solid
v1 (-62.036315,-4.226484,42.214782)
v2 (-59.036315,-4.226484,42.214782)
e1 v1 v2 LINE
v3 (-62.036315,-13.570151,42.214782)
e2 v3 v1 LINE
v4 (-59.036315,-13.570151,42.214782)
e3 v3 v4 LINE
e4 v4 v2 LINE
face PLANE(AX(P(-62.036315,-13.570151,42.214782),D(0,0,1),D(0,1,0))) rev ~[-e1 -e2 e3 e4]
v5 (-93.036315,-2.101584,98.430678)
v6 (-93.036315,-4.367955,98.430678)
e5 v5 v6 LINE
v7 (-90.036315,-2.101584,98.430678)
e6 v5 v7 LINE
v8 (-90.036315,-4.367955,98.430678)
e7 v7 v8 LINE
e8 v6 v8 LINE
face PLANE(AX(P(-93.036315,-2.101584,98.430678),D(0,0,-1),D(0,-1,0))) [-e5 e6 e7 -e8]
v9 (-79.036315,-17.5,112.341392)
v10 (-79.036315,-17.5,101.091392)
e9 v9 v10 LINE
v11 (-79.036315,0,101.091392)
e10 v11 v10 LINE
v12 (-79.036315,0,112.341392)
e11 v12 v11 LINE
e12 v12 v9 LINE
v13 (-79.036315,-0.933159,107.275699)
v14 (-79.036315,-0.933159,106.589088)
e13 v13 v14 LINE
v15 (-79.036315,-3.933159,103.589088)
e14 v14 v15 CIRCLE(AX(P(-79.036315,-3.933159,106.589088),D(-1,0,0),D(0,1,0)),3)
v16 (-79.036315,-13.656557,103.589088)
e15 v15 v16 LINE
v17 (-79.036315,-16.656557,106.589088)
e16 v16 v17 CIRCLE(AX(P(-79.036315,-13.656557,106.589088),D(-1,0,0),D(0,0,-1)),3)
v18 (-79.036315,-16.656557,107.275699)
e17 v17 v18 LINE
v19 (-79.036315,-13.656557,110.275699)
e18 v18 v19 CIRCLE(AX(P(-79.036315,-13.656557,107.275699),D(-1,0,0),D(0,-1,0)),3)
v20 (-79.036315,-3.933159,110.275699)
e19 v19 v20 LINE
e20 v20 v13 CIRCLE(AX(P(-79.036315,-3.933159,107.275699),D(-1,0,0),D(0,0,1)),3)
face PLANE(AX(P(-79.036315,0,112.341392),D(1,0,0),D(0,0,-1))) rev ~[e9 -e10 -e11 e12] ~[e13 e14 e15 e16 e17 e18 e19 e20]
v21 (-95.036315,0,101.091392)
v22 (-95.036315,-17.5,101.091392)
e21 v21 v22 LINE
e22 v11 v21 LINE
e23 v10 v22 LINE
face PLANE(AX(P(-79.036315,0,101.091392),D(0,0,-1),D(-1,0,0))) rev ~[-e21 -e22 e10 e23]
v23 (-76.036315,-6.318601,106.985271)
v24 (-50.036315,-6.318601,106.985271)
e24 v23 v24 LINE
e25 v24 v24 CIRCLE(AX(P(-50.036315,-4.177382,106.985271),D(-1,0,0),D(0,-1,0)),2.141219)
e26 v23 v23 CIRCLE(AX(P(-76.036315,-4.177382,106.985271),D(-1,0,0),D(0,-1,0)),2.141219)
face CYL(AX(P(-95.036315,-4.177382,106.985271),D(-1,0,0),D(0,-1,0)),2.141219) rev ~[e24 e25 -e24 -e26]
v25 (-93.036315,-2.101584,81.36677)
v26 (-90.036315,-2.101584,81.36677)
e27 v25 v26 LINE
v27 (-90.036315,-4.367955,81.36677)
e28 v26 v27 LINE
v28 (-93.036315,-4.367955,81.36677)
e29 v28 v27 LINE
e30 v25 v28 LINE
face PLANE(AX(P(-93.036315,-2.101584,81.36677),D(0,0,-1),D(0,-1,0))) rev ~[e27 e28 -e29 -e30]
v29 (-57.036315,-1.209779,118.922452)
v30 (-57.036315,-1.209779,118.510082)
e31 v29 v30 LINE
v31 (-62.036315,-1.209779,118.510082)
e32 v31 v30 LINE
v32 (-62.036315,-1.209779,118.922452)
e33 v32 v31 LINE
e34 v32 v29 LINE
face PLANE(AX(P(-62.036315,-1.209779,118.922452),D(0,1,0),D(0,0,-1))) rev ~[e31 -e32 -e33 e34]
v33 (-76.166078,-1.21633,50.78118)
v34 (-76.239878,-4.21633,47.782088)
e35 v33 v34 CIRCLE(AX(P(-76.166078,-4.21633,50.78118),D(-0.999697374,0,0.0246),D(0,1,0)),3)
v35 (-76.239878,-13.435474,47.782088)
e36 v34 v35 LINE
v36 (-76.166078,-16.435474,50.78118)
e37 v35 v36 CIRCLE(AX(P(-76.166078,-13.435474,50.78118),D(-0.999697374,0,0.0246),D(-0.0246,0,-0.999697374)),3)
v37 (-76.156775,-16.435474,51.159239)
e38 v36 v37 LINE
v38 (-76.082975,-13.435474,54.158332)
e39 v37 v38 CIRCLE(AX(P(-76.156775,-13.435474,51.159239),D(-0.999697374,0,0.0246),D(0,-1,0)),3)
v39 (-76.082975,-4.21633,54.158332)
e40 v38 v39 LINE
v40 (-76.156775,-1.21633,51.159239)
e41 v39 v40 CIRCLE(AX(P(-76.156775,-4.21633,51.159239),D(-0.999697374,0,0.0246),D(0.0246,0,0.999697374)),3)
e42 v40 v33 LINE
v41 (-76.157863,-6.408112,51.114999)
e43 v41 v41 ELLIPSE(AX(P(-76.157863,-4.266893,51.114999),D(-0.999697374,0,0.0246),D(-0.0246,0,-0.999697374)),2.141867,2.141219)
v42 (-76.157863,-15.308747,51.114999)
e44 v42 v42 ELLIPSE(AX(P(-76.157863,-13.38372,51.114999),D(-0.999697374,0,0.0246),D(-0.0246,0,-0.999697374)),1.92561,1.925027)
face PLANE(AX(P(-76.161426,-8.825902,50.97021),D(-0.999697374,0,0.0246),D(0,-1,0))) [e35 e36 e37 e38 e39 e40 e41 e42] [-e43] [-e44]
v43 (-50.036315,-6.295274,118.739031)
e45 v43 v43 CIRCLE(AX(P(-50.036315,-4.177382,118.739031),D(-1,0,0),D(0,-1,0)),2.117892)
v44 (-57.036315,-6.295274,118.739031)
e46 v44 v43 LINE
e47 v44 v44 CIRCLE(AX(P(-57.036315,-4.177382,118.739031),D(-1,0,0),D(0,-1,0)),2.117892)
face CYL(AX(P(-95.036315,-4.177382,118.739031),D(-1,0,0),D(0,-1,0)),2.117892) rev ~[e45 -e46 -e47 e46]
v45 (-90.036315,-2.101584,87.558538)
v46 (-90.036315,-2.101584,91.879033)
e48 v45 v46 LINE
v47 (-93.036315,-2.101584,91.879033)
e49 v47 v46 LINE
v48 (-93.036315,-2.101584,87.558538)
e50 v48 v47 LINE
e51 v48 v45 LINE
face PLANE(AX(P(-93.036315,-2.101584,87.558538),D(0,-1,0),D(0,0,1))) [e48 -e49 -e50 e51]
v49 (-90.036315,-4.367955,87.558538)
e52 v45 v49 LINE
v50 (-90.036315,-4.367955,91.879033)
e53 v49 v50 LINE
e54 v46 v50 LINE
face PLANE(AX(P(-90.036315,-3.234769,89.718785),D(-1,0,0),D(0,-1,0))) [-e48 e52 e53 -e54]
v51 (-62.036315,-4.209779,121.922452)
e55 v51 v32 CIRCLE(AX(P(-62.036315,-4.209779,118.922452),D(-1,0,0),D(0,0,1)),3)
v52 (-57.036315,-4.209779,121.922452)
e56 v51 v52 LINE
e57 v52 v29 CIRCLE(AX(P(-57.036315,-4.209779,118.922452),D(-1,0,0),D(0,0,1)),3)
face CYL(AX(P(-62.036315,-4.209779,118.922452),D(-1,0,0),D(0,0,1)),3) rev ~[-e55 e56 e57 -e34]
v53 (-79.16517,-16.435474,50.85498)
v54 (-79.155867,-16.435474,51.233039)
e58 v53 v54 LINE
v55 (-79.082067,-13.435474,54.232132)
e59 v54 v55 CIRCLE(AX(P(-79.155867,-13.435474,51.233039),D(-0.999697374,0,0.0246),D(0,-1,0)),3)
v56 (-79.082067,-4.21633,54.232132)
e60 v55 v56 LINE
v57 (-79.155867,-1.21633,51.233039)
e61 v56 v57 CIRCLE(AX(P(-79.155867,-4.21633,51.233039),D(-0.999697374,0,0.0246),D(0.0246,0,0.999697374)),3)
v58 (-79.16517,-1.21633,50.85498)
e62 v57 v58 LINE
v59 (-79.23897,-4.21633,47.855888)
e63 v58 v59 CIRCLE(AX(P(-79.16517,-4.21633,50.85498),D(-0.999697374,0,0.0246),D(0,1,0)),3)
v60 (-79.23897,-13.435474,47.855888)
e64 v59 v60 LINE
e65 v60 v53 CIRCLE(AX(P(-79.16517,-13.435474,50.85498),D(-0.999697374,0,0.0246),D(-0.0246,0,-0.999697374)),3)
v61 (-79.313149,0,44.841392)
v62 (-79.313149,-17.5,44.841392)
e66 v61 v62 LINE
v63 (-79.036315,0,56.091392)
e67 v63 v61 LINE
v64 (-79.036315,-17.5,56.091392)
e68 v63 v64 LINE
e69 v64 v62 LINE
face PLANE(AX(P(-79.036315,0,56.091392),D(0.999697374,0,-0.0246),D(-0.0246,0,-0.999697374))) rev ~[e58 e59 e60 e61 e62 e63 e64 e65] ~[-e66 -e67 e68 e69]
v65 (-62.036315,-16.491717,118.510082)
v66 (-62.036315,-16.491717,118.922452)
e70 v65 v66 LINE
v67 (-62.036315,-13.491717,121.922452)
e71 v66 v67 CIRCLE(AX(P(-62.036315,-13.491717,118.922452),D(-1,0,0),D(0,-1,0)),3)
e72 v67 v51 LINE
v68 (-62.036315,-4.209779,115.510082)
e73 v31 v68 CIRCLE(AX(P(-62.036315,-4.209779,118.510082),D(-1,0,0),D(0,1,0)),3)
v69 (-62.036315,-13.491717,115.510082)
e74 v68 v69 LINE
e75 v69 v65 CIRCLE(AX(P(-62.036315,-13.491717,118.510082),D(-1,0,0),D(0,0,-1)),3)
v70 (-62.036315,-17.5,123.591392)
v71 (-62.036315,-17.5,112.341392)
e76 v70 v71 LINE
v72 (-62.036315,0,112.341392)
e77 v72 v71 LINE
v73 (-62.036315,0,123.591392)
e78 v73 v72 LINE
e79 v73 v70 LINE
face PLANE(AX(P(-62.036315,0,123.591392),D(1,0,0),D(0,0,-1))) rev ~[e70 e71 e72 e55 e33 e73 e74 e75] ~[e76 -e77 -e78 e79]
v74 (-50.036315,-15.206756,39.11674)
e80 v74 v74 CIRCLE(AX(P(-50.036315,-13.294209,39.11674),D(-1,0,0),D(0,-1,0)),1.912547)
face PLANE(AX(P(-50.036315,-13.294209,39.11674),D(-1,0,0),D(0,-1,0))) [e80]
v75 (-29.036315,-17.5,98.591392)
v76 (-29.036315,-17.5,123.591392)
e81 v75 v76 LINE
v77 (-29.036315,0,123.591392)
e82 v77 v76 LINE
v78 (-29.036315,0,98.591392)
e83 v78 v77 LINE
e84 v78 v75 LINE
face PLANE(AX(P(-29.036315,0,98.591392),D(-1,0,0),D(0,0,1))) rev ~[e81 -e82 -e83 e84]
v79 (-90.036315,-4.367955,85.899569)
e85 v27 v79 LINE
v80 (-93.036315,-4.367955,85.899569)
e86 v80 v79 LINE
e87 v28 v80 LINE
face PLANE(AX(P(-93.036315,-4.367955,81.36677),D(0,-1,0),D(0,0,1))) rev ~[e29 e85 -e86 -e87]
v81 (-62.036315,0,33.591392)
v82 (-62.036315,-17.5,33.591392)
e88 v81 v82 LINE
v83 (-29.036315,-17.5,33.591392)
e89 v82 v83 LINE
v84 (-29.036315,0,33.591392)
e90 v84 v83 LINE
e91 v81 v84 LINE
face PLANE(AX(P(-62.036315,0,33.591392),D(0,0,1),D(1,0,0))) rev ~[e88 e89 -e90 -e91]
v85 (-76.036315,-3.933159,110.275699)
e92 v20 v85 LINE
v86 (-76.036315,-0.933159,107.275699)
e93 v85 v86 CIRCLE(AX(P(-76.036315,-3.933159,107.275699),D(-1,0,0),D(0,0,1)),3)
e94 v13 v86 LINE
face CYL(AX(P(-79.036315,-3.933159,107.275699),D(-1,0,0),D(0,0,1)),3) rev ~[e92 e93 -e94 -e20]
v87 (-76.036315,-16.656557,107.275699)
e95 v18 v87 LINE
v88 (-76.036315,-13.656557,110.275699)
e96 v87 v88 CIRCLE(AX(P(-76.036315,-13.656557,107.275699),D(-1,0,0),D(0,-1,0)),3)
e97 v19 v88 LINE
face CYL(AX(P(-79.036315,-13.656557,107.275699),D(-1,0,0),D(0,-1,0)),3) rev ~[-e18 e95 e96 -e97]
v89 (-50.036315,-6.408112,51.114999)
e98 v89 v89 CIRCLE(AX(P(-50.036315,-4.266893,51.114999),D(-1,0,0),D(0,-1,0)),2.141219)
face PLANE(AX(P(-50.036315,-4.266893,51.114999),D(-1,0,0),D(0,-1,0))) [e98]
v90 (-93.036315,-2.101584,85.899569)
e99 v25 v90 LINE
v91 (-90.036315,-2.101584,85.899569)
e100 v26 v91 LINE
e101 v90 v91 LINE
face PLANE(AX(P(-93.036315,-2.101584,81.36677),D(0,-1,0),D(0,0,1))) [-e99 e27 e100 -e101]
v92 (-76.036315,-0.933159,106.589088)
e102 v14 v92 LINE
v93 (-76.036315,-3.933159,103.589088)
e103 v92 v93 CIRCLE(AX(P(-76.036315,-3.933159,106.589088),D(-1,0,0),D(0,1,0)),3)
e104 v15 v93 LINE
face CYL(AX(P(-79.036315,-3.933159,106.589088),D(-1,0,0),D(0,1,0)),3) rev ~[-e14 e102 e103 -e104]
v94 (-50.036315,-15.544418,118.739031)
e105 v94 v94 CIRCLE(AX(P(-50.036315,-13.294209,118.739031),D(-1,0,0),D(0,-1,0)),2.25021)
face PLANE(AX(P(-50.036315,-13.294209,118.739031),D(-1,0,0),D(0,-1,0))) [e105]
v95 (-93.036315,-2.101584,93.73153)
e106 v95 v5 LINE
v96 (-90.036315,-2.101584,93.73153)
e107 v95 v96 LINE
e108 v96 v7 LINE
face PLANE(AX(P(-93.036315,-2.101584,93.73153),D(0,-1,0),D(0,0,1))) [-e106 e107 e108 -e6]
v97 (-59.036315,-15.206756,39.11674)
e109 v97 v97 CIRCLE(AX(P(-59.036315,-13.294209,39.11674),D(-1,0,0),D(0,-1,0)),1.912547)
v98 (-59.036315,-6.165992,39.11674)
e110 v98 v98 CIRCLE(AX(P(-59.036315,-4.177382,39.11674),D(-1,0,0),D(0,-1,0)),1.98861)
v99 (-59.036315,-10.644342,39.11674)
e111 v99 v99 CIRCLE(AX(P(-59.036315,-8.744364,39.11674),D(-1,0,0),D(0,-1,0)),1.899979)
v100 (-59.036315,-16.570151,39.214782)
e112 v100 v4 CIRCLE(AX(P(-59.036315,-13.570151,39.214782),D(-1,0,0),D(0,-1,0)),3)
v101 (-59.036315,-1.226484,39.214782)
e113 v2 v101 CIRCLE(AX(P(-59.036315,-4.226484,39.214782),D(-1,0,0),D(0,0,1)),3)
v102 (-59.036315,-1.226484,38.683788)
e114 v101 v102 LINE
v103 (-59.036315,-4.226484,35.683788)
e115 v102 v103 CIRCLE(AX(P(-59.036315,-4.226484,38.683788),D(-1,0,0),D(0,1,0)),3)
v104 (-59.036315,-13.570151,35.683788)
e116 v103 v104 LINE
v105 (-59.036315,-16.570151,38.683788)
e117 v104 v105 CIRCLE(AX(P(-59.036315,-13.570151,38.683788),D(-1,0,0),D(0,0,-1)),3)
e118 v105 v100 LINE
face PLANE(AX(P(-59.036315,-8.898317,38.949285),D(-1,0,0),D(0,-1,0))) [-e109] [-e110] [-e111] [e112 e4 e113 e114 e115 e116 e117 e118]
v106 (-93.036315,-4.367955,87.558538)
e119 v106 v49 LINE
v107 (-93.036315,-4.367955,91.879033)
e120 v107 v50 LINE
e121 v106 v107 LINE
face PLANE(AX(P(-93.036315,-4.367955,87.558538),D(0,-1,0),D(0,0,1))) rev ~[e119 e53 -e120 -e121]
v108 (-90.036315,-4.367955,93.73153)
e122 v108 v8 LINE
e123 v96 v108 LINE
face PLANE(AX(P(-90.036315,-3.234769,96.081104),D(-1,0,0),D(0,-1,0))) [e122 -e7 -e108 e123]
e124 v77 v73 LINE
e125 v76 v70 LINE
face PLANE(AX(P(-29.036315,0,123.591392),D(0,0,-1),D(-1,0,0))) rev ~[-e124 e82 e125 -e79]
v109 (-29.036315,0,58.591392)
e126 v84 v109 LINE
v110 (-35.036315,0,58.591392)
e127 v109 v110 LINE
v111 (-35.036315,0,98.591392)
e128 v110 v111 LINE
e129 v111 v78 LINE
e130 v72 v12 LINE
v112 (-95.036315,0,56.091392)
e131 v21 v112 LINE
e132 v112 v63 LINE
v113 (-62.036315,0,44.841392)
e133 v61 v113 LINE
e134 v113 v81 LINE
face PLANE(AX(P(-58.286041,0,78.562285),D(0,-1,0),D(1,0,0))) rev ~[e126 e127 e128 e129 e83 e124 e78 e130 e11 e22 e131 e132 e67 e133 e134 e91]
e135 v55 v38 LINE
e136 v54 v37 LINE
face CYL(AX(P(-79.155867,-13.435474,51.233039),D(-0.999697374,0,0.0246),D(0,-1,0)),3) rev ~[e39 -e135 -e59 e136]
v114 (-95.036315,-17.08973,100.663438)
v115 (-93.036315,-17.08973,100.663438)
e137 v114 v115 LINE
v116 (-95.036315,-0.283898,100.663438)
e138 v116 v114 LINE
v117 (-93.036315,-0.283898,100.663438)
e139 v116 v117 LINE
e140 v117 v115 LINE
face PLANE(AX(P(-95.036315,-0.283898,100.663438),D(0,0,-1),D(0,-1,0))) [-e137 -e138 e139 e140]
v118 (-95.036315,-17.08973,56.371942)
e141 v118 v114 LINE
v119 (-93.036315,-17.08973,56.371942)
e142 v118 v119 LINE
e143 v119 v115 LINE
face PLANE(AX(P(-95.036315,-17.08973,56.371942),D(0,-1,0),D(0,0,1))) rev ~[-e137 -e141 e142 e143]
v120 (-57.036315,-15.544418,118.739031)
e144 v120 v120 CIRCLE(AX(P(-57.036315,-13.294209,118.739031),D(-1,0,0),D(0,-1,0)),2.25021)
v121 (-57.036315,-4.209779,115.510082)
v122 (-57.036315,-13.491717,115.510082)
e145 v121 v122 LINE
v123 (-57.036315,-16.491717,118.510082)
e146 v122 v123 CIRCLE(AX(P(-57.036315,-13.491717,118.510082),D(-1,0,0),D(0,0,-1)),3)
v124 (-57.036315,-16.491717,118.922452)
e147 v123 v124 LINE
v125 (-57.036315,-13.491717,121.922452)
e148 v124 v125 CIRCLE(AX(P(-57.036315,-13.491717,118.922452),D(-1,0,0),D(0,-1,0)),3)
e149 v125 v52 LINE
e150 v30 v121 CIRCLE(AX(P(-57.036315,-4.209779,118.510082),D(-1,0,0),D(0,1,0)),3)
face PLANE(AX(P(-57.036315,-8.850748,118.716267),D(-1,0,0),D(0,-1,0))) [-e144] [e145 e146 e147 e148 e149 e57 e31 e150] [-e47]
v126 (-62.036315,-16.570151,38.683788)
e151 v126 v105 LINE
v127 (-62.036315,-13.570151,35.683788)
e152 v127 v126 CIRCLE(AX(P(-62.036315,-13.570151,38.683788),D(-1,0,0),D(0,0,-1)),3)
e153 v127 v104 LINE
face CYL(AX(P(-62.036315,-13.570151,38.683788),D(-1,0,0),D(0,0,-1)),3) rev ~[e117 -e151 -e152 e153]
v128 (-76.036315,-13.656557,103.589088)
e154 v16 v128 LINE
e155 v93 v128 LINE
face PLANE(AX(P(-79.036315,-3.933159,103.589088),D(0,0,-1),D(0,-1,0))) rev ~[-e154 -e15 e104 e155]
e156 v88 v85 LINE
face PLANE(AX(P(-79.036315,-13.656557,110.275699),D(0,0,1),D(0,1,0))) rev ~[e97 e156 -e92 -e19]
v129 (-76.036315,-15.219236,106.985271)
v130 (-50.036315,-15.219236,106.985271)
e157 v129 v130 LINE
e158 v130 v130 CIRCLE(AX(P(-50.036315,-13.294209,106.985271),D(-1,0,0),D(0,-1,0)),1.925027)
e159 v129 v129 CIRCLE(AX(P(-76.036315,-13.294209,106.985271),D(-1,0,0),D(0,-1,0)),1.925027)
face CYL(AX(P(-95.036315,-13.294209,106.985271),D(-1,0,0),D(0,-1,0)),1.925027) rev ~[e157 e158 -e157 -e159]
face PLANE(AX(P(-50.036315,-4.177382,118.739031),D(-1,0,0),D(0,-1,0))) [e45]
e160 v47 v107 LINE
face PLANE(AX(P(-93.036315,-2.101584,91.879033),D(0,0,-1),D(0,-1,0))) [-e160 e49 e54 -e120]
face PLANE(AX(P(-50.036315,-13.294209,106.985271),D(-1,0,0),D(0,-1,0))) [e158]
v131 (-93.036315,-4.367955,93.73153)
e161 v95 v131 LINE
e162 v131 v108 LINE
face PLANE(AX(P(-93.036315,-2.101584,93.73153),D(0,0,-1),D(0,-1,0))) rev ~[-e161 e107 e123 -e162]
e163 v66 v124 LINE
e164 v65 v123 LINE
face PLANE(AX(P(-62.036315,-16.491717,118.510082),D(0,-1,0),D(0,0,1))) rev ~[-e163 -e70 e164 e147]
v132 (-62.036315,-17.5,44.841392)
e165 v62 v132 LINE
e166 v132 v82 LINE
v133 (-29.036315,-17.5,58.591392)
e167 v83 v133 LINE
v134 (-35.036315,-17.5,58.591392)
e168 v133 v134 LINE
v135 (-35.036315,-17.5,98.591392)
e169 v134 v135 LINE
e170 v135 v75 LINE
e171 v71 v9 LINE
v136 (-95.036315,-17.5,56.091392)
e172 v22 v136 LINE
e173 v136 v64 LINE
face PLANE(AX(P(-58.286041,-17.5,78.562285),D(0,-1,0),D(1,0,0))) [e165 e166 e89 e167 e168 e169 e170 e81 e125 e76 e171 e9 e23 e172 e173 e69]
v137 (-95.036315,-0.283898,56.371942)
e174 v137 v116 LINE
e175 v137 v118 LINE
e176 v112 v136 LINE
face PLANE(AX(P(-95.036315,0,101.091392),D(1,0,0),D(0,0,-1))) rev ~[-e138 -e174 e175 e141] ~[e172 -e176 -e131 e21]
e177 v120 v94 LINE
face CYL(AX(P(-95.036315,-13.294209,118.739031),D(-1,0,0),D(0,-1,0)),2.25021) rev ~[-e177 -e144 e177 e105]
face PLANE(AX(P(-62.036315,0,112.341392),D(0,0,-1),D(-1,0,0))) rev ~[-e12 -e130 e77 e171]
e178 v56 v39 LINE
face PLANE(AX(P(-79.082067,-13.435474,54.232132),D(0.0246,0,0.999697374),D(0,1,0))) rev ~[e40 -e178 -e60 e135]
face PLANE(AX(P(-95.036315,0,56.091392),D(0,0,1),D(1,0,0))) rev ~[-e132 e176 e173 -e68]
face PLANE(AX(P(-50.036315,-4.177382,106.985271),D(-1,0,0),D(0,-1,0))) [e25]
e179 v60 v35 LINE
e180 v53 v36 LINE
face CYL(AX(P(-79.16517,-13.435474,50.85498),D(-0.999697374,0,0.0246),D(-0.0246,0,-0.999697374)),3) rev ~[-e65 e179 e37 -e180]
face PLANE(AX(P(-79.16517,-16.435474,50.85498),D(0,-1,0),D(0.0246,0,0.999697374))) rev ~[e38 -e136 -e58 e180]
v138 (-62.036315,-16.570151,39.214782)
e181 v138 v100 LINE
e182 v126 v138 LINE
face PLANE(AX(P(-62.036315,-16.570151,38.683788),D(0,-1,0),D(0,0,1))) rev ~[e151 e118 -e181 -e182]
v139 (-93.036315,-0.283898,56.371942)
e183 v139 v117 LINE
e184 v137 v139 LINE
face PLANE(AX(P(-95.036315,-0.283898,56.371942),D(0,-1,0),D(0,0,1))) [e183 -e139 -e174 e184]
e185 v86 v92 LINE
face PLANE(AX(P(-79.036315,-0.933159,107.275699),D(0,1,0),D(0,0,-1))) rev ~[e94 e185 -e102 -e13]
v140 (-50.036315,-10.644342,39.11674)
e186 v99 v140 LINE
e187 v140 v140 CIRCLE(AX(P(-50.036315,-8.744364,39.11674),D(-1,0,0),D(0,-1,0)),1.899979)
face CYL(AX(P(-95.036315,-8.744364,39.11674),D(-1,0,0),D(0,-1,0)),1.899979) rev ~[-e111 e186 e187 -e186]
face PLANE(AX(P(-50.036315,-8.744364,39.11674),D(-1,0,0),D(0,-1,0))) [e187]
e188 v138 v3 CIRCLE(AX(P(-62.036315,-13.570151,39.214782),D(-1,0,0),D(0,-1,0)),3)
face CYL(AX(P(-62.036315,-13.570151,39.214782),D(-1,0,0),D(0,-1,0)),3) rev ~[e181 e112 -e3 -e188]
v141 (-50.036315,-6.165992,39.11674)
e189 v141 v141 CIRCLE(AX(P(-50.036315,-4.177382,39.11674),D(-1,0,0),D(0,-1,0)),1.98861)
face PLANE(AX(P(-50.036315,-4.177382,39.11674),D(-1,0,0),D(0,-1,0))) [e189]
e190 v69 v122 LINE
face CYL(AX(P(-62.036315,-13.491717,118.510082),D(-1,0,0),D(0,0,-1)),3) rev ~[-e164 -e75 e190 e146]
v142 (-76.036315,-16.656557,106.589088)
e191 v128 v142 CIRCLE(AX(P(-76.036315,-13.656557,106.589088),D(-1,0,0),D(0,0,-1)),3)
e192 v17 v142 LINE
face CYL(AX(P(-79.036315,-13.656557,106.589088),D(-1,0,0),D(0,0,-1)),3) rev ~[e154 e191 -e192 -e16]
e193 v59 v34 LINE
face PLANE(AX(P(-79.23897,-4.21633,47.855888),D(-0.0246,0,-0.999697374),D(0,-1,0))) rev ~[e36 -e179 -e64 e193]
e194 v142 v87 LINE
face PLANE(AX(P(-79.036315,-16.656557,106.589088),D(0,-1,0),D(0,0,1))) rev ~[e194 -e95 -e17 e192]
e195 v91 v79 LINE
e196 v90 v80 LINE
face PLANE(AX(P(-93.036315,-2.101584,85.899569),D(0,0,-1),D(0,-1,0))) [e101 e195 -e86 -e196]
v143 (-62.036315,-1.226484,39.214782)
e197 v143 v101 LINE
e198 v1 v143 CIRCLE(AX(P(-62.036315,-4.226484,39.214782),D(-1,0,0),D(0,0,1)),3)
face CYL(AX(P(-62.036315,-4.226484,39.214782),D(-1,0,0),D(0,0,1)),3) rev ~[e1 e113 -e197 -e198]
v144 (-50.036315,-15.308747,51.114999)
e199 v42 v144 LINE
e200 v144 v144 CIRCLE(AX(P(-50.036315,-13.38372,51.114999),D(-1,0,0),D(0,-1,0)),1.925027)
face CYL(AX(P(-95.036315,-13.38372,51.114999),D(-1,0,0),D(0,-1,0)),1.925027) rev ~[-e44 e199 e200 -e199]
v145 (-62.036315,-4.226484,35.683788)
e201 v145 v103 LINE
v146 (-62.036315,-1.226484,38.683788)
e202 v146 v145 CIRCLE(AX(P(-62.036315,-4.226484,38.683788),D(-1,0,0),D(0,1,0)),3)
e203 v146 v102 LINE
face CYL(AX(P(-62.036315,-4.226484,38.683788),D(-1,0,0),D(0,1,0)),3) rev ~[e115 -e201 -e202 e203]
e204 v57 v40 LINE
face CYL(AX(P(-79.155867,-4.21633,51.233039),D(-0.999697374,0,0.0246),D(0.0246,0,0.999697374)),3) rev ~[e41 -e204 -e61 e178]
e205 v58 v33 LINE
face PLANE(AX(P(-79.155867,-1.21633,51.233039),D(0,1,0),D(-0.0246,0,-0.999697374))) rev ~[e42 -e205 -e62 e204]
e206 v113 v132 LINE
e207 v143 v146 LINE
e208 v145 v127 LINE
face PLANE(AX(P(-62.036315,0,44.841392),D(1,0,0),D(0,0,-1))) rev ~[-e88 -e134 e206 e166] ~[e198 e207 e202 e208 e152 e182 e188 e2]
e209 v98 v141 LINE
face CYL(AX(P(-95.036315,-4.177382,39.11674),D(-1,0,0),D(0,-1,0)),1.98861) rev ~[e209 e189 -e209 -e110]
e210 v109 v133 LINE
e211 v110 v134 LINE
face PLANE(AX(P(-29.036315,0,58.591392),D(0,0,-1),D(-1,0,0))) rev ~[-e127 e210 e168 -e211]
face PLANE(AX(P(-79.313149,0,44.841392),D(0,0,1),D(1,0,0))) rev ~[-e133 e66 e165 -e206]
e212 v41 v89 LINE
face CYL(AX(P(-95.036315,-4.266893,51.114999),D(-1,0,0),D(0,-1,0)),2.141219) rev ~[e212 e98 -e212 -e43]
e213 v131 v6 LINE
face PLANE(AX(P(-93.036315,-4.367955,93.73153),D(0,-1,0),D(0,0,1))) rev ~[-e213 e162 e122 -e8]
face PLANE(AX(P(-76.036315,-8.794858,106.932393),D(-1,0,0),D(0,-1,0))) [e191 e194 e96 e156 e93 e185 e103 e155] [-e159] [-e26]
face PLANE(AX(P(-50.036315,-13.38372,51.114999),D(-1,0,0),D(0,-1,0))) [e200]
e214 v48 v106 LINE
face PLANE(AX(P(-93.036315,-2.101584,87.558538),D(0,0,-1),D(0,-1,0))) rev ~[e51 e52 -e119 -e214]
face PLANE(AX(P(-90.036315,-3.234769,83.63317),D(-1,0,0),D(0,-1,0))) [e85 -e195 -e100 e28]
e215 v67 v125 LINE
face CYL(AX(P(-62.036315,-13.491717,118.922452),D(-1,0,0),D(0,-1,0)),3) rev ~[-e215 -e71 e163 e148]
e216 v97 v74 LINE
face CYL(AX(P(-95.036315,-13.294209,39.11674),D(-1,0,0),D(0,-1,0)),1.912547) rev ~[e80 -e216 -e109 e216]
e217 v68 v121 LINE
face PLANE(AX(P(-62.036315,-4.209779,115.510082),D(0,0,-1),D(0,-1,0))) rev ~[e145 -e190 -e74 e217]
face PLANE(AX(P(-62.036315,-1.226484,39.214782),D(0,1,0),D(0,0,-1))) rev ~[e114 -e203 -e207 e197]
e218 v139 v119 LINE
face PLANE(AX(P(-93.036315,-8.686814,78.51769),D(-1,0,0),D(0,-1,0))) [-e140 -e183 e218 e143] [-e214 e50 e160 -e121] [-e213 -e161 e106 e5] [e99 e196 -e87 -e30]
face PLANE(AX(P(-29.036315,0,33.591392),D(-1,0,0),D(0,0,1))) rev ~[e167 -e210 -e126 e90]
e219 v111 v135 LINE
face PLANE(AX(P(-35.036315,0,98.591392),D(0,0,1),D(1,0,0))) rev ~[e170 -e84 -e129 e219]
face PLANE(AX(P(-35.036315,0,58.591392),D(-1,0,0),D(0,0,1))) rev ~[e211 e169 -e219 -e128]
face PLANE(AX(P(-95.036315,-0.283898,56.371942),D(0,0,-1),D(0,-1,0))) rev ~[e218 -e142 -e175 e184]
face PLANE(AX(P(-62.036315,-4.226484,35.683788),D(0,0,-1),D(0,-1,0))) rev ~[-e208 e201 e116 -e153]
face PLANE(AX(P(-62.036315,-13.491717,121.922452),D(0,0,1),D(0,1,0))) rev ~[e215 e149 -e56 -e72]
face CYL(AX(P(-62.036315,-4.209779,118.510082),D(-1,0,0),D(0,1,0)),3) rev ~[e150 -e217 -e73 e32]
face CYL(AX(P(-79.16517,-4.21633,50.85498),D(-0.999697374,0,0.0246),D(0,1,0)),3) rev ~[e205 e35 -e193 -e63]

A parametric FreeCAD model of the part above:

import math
import FreeCAD as App
import Part
import Sketcher

V = App.Vector
Q = App.Units.Quantity


def add_polygon(sketch, points):
    """Adds a closed chain of lines whose ends are joined by coincident constraints."""
    first, n = sketch.GeometryCount, len(points)
    for a, b in zip(points, points[1:] + points[:1]):
        sketch.addGeometry(Part.LineSegment(App.Vector(*a, 0), App.Vector(*b, 0)), False)
    for i in range(n):
        sketch.addConstraint(Sketcher.Constraint("Coincident", first + i, 2, first + (i + 1) % n, 1))

doc = App.newDocument("Part")
body = doc.addObject("PartDesign::Body", "Body")

# Sketch on XZ plane
sketch1 = body.newObject("Sketcher::SketchObject", "Sketch")
sketch1.AttachmentSupport = (doc.getObject("XZ_Plane"), [""])
sketch1.MapMode = "FlatFace"
add_polygon(sketch1, [(-29, 124), (-62, 124), (-62, 112), (-79, 112), (-79, 101), (-95, 101), (-95, 56), (-79, 56), (-79, 45), (-62, 45), (-62, 34), (-29, 34), (-29, 59), (-35, 59), (-35, 99), (-29, 99)])  # lines 0-15
sketch1.addConstraint(Sketcher.Constraint("Horizontal", 0))
sketch1.addConstraint(Sketcher.Constraint("Vertical", 1))
sketch1.addConstraint(Sketcher.Constraint("Horizontal", 2))
sketch1.addConstraint(Sketcher.Constraint("Vertical", 3))
sketch1.addConstraint(Sketcher.Constraint("Horizontal", 4))
sketch1.addConstraint(Sketcher.Constraint("Vertical", 5))
sketch1.addConstraint(Sketcher.Constraint("Horizontal", 6))
sketch1.addConstraint(Sketcher.Constraint("Horizontal", 8))
sketch1.addConstraint(Sketcher.Constraint("Vertical", 9))
sketch1.addConstraint(Sketcher.Constraint("Horizontal", 10))
sketch1.addConstraint(Sketcher.Constraint("Vertical", 11))
sketch1.addConstraint(Sketcher.Constraint("Horizontal", 12))
sketch1.addConstraint(Sketcher.Constraint("Vertical", 13))
sketch1.addConstraint(Sketcher.Constraint("Horizontal", 14))
sketch1.addConstraint(Sketcher.Constraint("Vertical", 15))
sketch1.addConstraint(Sketcher.Constraint("Vertical", 3, 2, 6, 2))
sketch1.addConstraint(Sketcher.Constraint("Vertical", 1, 2, 8, 2))
sketch1.addConstraint(Sketcher.Constraint("Vertical", 11, 2, 14, 2))
sketch1.addConstraint(Sketcher.Constraint("Equal", 1, 3))
sketch1.addConstraint(Sketcher.Constraint("Equal", 3, 9))
sketch1.addConstraint(Sketcher.Constraint("Equal", 11, 15))
sketch1.addConstraint(Sketcher.Constraint("DistanceX", 0, 2, 0, 1, Q("33 mm")))
sketch1.addConstraint(Sketcher.Constraint("DistanceX", 2, 2, 2, 1, Q("17 mm")))
sketch1.addConstraint(Sketcher.Constraint("DistanceX", 4, 2, 4, 1, Q("16 mm")))
sketch1.addConstraint(Sketcher.Constraint("DistanceX", 12, 2, 12, 1, Q("6 mm")))
sketch1.addConstraint(Sketcher.Constraint("DistanceY", 5, 2, 5, 1, Q("45 mm")))
sketch1.addConstraint(Sketcher.Constraint("DistanceY", 11, 1, 11, 2, Q("25 mm")))
sketch1.addConstraint(Sketcher.Constraint("DistanceY", 13, 1, 13, 2, Q("40 mm")))
sketch1.addConstraint(Sketcher.Constraint("DistanceY", 1, 2, 1, 1, Q("11.25 mm")))
sketch1.addConstraint(Sketcher.Constraint("DistanceX", 8, 1, 8, 2, Q("17.276834 mm")))
sketch1.addConstraint(Sketcher.Constraint("DistanceY", -1, 1, 0, 2, Q("123.591392 mm")))
sketch1.addConstraint(Sketcher.Constraint("DistanceX", 7, 2, -1, 1, Q("79.313149 mm")))
pad1 = body.newObject("PartDesign::Pad", "Pad")
pad1.Profile = sketch1
pad1.Length = 17.5

# Sketch on YZ plane
sketch2 = body.newObject("Sketcher::SketchObject", "Sketch001")
sketch2.AttachmentSupport = (doc.getObject("YZ_Plane"), [""])
sketch2.MapMode = "FlatFace"
sketch2.AttachmentOffset = App.Placement(V(0, 0, -62.036315), App.Rotation())
sketch2.addGeometry(Part.LineSegment(V(-13.49, 121.92, 0), V(-4.21, 121.92, 0)), False)
sketch2.addGeometry(Part.ArcOfCircle(Part.Circle(V(-4.21, 118.92, 0), V(0, 0, 1), 3), math.radians(0), math.radians(90)), False)
sketch2.addGeometry(Part.LineSegment(V(-1.21, 118.92, 0), V(-1.21, 118.51, 0)), False)
sketch2.addGeometry(Part.ArcOfCircle(Part.Circle(V(-4.21, 118.51, 0), V(0, 0, 1), 3), math.radians(-90), math.radians(0)), False)
sketch2.addGeometry(Part.LineSegment(V(-4.21, 115.51, 0), V(-13.49, 115.51, 0)), False)
sketch2.addGeometry(Part.ArcOfCircle(Part.Circle(V(-13.49, 118.51, 0), V(0, 0, 1), 3), math.radians(180), math.radians(270)), False)
sketch2.addGeometry(Part.LineSegment(V(-16.49, 118.51, 0), V(-16.49, 118.92, 0)), False)
sketch2.addGeometry(Part.ArcOfCircle(Part.Circle(V(-13.49, 118.92, 0), V(0, 0, 1), 3), math.radians(90), math.radians(180)), False)
sketch2.addConstraint(Sketcher.Constraint("Tangent", 0, 2, 1, 2))
sketch2.addConstraint(Sketcher.Constraint("Tangent", 1, 1, 2, 1))
sketch2.addConstraint(Sketcher.Constraint("Tangent", 2, 2, 3, 2))
sketch2.addConstraint(Sketcher.Constraint("Tangent", 3, 1, 4, 1))
sketch2.addConstraint(Sketcher.Constraint("Tangent", 4, 2, 5, 2))
sketch2.addConstraint(Sketcher.Constraint("Tangent", 5, 1, 6, 1))
sketch2.addConstraint(Sketcher.Constraint("Tangent", 6, 2, 7, 2))
sketch2.addConstraint(Sketcher.Constraint("Tangent", 7, 1, 0, 1))
sketch2.addConstraint(Sketcher.Constraint("Horizontal", 0))
sketch2.addConstraint(Sketcher.Constraint("Vertical", 2))
sketch2.addConstraint(Sketcher.Constraint("Horizontal", 4))
sketch2.addConstraint(Sketcher.Constraint("Vertical", 6))
sketch2.addConstraint(Sketcher.Constraint("Equal", 1, 3))
sketch2.addConstraint(Sketcher.Constraint("Equal", 3, 5))
sketch2.addConstraint(Sketcher.Constraint("Equal", 5, 7))
sketch2.addConstraint(Sketcher.Constraint("Radius", 1, Q("3 mm")))
sketch2.addConstraint(Sketcher.Constraint("DistanceY", 2, 2, 2, 1, Q("0.41237 mm")))
sketch2.addConstraint(Sketcher.Constraint("DistanceX", 0, 1, 0, 2, Q("9.281938 mm")))
sketch2.addConstraint(Sketcher.Constraint("DistanceX", 1, 3, -1, 1, Q("4.209779 mm")))
sketch2.addConstraint(Sketcher.Constraint("DistanceY", -1, 1, 1, 3, Q("118.922452 mm")))
pocket1 = body.newObject("PartDesign::Pocket", "Pocket")
pocket1.Profile = sketch2
pocket1.Length = 5
pocket1.Reversed = True

# Sketch on YZ plane
sketch3 = body.newObject("Sketcher::SketchObject", "Sketch002")
sketch3.AttachmentSupport = (doc.getObject("YZ_Plane"), [""])
sketch3.MapMode = "FlatFace"
sketch3.AttachmentOffset = App.Placement(V(0, 0, -79.036315), App.Rotation())
sketch3.addGeometry(Part.LineSegment(V(-13.7, 110.3, 0), V(-3.9, 110.3, 0)), False)
sketch3.addGeometry(Part.ArcOfCircle(Part.Circle(V(-3.9, 107.3, 0), V(0, 0, 1), 3), math.radians(0), math.radians(90)), False)
sketch3.addGeometry(Part.LineSegment(V(-0.9, 107.3, 0), V(-0.9, 106.6, 0)), False)
sketch3.addGeometry(Part.ArcOfCircle(Part.Circle(V(-3.9, 106.6, 0), V(0, 0, 1), 3), math.radians(-90), math.radians(0)), False)
sketch3.addGeometry(Part.LineSegment(V(-3.9, 103.6, 0), V(-13.7, 103.6, 0)), False)
sketch3.addGeometry(Part.ArcOfCircle(Part.Circle(V(-13.7, 106.6, 0), V(0, 0, 1), 3), math.radians(180), math.radians(270)), False)
sketch3.addGeometry(Part.LineSegment(V(-16.7, 106.6, 0), V(-16.7, 107.3, 0)), False)
sketch3.addGeometry(Part.ArcOfCircle(Part.Circle(V(-13.7, 107.3, 0), V(0, 0, 1), 3), math.radians(90), math.radians(180)), False)
sketch3.addConstraint(Sketcher.Constraint("Tangent", 0, 2, 1, 2))
sketch3.addConstraint(Sketcher.Constraint("Tangent", 1, 1, 2, 1))
sketch3.addConstraint(Sketcher.Constraint("Tangent", 2, 2, 3, 2))
sketch3.addConstraint(Sketcher.Constraint("Tangent", 3, 1, 4, 1))
sketch3.addConstraint(Sketcher.Constraint("Tangent", 4, 2, 5, 2))
sketch3.addConstraint(Sketcher.Constraint("Tangent", 5, 1, 6, 1))
sketch3.addConstraint(Sketcher.Constraint("Tangent", 6, 2, 7, 2))
sketch3.addConstraint(Sketcher.Constraint("Tangent", 7, 1, 0, 1))
sketch3.addConstraint(Sketcher.Constraint("Horizontal", 0))
sketch3.addConstraint(Sketcher.Constraint("Vertical", 2))
sketch3.addConstraint(Sketcher.Constraint("Horizontal", 4))
sketch3.addConstraint(Sketcher.Constraint("Vertical", 6))
sketch3.addConstraint(Sketcher.Constraint("Equal", 1, 3))
sketch3.addConstraint(Sketcher.Constraint("Equal", 3, 5))
sketch3.addConstraint(Sketcher.Constraint("Equal", 5, 7))
sketch3.addConstraint(Sketcher.Constraint("Radius", 1, Q("3 mm")))
sketch3.addConstraint(Sketcher.Constraint("DistanceX", 0, 1, 0, 2, Q("9.723398 mm")))
sketch3.addConstraint(Sketcher.Constraint("DistanceY", 2, 2, 2, 1, Q("0.686611 mm")))
sketch3.addConstraint(Sketcher.Constraint("DistanceY", -1, 1, 1, 3, Q("107.275699 mm")))
sketch3.addConstraint(Sketcher.Constraint("DistanceX", 1, 3, -1, 1, Q("3.933159 mm")))
pocket2 = body.newObject("PartDesign::Pocket", "Pocket001")
pocket2.Profile = sketch3
pocket2.Length = 3
pocket2.Reversed = True

# Sketch on YZ plane
sketch4 = body.newObject("Sketcher::SketchObject", "Sketch003")
sketch4.AttachmentSupport = (doc.getObject("YZ_Plane"), [""])
sketch4.MapMode = "FlatFace"
sketch4.AttachmentOffset = App.Placement(V(0, 0, -62.036315), App.Rotation())
sketch4.addGeometry(Part.ArcOfCircle(Part.Circle(V(-4.2, 38.7, 0), V(0, 0, 1), 3), math.radians(-90), math.radians(0)), False)
sketch4.addGeometry(Part.LineSegment(V(-4.2, 35.7, 0), V(-13.6, 35.7, 0)), False)
sketch4.addGeometry(Part.ArcOfCircle(Part.Circle(V(-13.6, 38.7, 0), V(0, 0, 1), 3), math.radians(180), math.radians(270)), False)
sketch4.addGeometry(Part.LineSegment(V(-16.6, 38.7, 0), V(-16.6, 39.2, 0)), False)
sketch4.addGeometry(Part.ArcOfCircle(Part.Circle(V(-13.6, 39.2, 0), V(0, 0, 1), 3), math.radians(90), math.radians(180)), False)
sketch4.addGeometry(Part.LineSegment(V(-13.6, 42.2, 0), V(-4.2, 42.2, 0)), False)
sketch4.addGeometry(Part.ArcOfCircle(Part.Circle(V(-4.2, 39.2, 0), V(0, 0, 1), 3), math.radians(0), math.radians(90)), False)
sketch4.addGeometry(Part.LineSegment(V(-1.2, 39.2, 0), V(-1.2, 38.7, 0)), False)
sketch4.addConstraint(Sketcher.Constraint("Tangent", 0, 1, 1, 1))
sketch4.addConstraint(Sketcher.Constraint("Tangent", 1, 2, 2, 2))
sketch4.addConstraint(Sketcher.Constraint("Tangent", 2, 1, 3, 1))
sketch4.addConstraint(Sketcher.Constraint("Tangent", 3, 2, 4, 2))
sketch4.addConstraint(Sketcher.Constraint("Tangent", 4, 1, 5, 1))
sketch4.addConstraint(Sketcher.Constraint("Tangent", 5, 2, 6, 2))
sketch4.addConstraint(Sketcher.Constraint("Tangent", 6, 1, 7, 1))
sketch4.addConstraint(Sketcher.Constraint("Tangent", 7, 2, 0, 2))
sketch4.addConstraint(Sketcher.Constraint("Horizontal", 1))
sketch4.addConstraint(Sketcher.Constraint("Vertical", 3))
sketch4.addConstraint(Sketcher.Constraint("Horizontal", 5))
sketch4.addConstraint(Sketcher.Constraint("Vertical", 7))
sketch4.addConstraint(Sketcher.Constraint("Equal", 0, 2))
sketch4.addConstraint(Sketcher.Constraint("Equal", 2, 4))
sketch4.addConstraint(Sketcher.Constraint("Equal", 4, 6))
sketch4.addConstraint(Sketcher.Constraint("Radius", 0, Q("3 mm")))
sketch4.addConstraint(Sketcher.Constraint("DistanceX", 1, 2, 1, 1, Q("9.343667 mm")))
sketch4.addConstraint(Sketcher.Constraint("DistanceY", 3, 1, 3, 2, Q("0.530994 mm")))
sketch4.addConstraint(Sketcher.Constraint("DistanceY", -1, 1, 0, 3, Q("38.683788 mm")))
sketch4.addConstraint(Sketcher.Constraint("DistanceX", 2, 3, -1, 1, Q("13.570151 mm")))
pocket3 = body.newObject("PartDesign::Pocket", "Pocket002")
pocket3.Profile = sketch4
pocket3.Length = 3
pocket3.Reversed = True

# Sketch on YZ plane
sketch5 = body.newObject("Sketcher::SketchObject", "Sketch004")
sketch5.AttachmentSupport = (doc.getObject("YZ_Plane"), [""])
sketch5.MapMode = "FlatFace"
sketch5.AttachmentOffset = App.Placement(V(0, 0, -95.036315), App.Rotation())
add_polygon(sketch5, [(0, 101), (0, 56), (-17, 56), (-17, 101)])  # lines 0-3
sketch5.addConstraint(Sketcher.Constraint("Vertical", 0))
sketch5.addConstraint(Sketcher.Constraint("Horizontal", 1))
sketch5.addConstraint(Sketcher.Constraint("Vertical", 2))
sketch5.addConstraint(Sketcher.Constraint("Horizontal", 3))
sketch5.addConstraint(Sketcher.Constraint("DistanceX", 1, 2, 1, 1, Q("16.805832 mm")))
sketch5.addConstraint(Sketcher.Constraint("DistanceX", 0, 2, -1, 1, Q("0.283898 mm")))
sketch5.addConstraint(Sketcher.Constraint("DistanceY", 0, 2, 0, 1, Q("44.291496 mm")))
sketch5.addConstraint(Sketcher.Constraint("DistanceY", -1, 1, 2, 2, Q("100.663438 mm")))
pocket4 = body.newObject("PartDesign::Pocket", "Pocket003")
pocket4.Profile = sketch5
pocket4.Length = 2
pocket4.Reversed = True

# Sketch on YZ plane
sketch6 = body.newObject("Sketcher::SketchObject", "Sketch005")
sketch6.AttachmentSupport = (doc.getObject("YZ_Plane"), [""])
sketch6.MapMode = "FlatFace"
sketch6.AttachmentOffset = App.Placement(V(0, 0, -95.036315), App.Rotation())
sketch6.addGeometry(Part.Circle(V(-4.2, 118.7, 0), V(0, 0, 1), 2.1), False)
sketch6.addGeometry(Part.Circle(V(-13.3, 118.7, 0), V(0, 0, 1), 2.3), False)
sketch6.addGeometry(Part.Circle(V(-4.2, 107, 0), V(0, 0, 1), 2.1), False)
sketch6.addGeometry(Part.Circle(V(-13.3, 107, 0), V(0, 0, 1), 1.9), False)
sketch6.addGeometry(Part.Circle(V(-4.3, 51.1, 0), V(0, 0, 1), 2.1), False)
sketch6.addGeometry(Part.Circle(V(-13.4, 51.1, 0), V(0, 0, 1), 1.9), False)
sketch6.addGeometry(Part.Circle(V(-4.2, 39.1, 0), V(0, 0, 1), 2), False)
sketch6.addGeometry(Part.Circle(V(-8.7, 39.1, 0), V(0, 0, 1), 1.9), False)
sketch6.addGeometry(Part.Circle(V(-13.3, 39.1, 0), V(0, 0, 1), 1.9), False)
sketch6.addConstraint(Sketcher.Constraint("Equal", 2, 4))
sketch6.addConstraint(Sketcher.Constraint("Equal", 3, 5))
sketch6.addConstraint(Sketcher.Constraint("Horizontal", 0, 3, 1, 3))
sketch6.addConstraint(Sketcher.Constraint("Horizontal", 2, 3, 3, 3))
sketch6.addConstraint(Sketcher.Constraint("Horizontal", 4, 3, 5, 3))
sketch6.addConstraint(Sketcher.Constraint("Horizontal", 6, 3, 7, 3))
sketch6.addConstraint(Sketcher.Constraint("Horizontal", 7, 3, 8, 3))
sketch6.addConstraint(Sketcher.Constraint("Vertical", 0, 3, 2, 3))
sketch6.addConstraint(Sketcher.Constraint("Vertical", 1, 3, 3, 3))
sketch6.addConstraint(Sketcher.Constraint("Vertical", 2, 3, 6, 3))
sketch6.addConstraint(Sketcher.Constraint("Vertical", 3, 3, 8, 3))
sketch6.addConstraint(Sketcher.Constraint("Diameter", 1, Q("4.500419 mm")))
sketch6.addConstraint(Sketcher.Constraint("Diameter", 6, Q("3.977221 mm")))
sketch6.addConstraint(Sketcher.Constraint("Diameter", 0, Q("4.235784 mm")))
sketch6.addConstraint(Sketcher.Constraint("Diameter", 2, Q("4.282438 mm")))
sketch6.addConstraint(Sketcher.Constraint("Diameter", 3, Q("3.850055 mm")))
sketch6.addConstraint(Sketcher.Constraint("Diameter", 7, Q("3.799957 mm")))
sketch6.addConstraint(Sketcher.Constraint("Diameter", 8, Q("3.825095 mm")))
sketch6.addConstraint(Sketcher.Constraint("DistanceY", -1, 1, 4, 3, Q("51.114999 mm")))
sketch6.addConstraint(Sketcher.Constraint("DistanceX", 0, 3, -1, 1, Q("4.177382 mm")))
sketch6.addConstraint(Sketcher.Constraint("DistanceY", -1, 1, 0, 3, Q("118.739031 mm")))
sketch6.addConstraint(Sketcher.Constraint("DistanceX", 1, 3, -1, 1, Q("13.294209 mm")))
sketch6.addConstraint(Sketcher.Constraint("DistanceY", -1, 1, 2, 3, Q("106.985271 mm")))
sketch6.addConstraint(Sketcher.Constraint("DistanceX", 5, 3, -1, 1, Q("13.38372 mm")))
sketch6.addConstraint(Sketcher.Constraint("DistanceY", -1, 1, 6, 3, Q("39.11674 mm")))
sketch6.addConstraint(Sketcher.Constraint("DistanceX", 4, 3, 2, 3, Q("0.089511 mm")))
sketch6.addConstraint(Sketcher.Constraint("DistanceX", 7, 3, 6, 3, Q("4.566982 mm")))
pocket5 = body.newObject("PartDesign::Pocket", "Pocket004")
pocket5.Profile = sketch6
pocket5.Length = 45
pocket5.Reversed = True

# Sketch on an angled plane
sketch7 = body.newObject("Sketcher::SketchObject", "Sketch006")
sketch7.Placement = App.Placement(V(-80.367916, 0, 1.977649), App.Rotation(V(0, -1, 0), V(0.0246, 0, 0.999697374), V(-0.999697374, 0, 0.0246), "ZXY"))
sketch7.addGeometry(Part.ArcOfCircle(Part.Circle(V(13.44, 49.27, 0), V(0, 0, 1), 3), math.radians(0), math.radians(90)), False)
sketch7.addGeometry(Part.LineSegment(V(13.44, 52.27, 0), V(4.22, 52.27, 0)), False)
sketch7.addGeometry(Part.ArcOfCircle(Part.Circle(V(4.22, 49.27, 0), V(0, 0, 1), 3), math.radians(90), math.radians(180)), False)
sketch7.addGeometry(Part.LineSegment(V(1.22, 49.27, 0), V(1.22, 48.89, 0)), False)
sketch7.addGeometry(Part.ArcOfCircle(Part.Circle(V(4.22, 48.89, 0), V(0, 0, 1), 3), math.radians(180), math.radians(270)), False)
sketch7.addGeometry(Part.LineSegment(V(4.22, 45.89, 0), V(13.44, 45.89, 0)), False)
sketch7.addGeometry(Part.ArcOfCircle(Part.Circle(V(13.44, 48.89, 0), V(0, 0, 1), 3), math.radians(-90), math.radians(0)), False)
sketch7.addGeometry(Part.LineSegment(V(16.44, 48.89, 0), V(16.44, 49.27, 0)), False)
sketch7.addConstraint(Sketcher.Constraint("Tangent", 0, 2, 1, 1))
sketch7.addConstraint(Sketcher.Constraint("Tangent", 1, 2, 2, 1))
sketch7.addConstraint(Sketcher.Constraint("Tangent", 2, 2, 3, 1))
sketch7.addConstraint(Sketcher.Constraint("Tangent", 3, 2, 4, 1))
sketch7.addConstraint(Sketcher.Constraint("Tangent", 4, 2, 5, 1))
sketch7.addConstraint(Sketcher.Constraint("Tangent", 5, 2, 6, 1))
sketch7.addConstraint(Sketcher.Constraint("Tangent", 6, 2, 7, 1))
sketch7.addConstraint(Sketcher.Constraint("Tangent", 7, 2, 0, 1))
sketch7.addConstraint(Sketcher.Constraint("Horizontal", 1))
sketch7.addConstraint(Sketcher.Constraint("Vertical", 3))
sketch7.addConstraint(Sketcher.Constraint("Horizontal", 5))
sketch7.addConstraint(Sketcher.Constraint("Vertical", 7))
sketch7.addConstraint(Sketcher.Constraint("Equal", 0, 2))
sketch7.addConstraint(Sketcher.Constraint("Equal", 2, 4))
sketch7.addConstraint(Sketcher.Constraint("Equal", 4, 6))
sketch7.addConstraint(Sketcher.Constraint("Radius", 0, Q("3 mm")))
sketch7.addConstraint(Sketcher.Constraint("DistanceY", -1, 1, 0, 3, Q("49.270301 mm")))
sketch7.addConstraint(Sketcher.Constraint("DistanceX", 1, 2, 1, 1, Q("9.219144 mm")))
sketch7.addConstraint(Sketcher.Constraint("DistanceY", 3, 2, 3, 1, Q("0.378174 mm")))
sketch7.addConstraint(Sketcher.Constraint("DistanceX", -1, 1, 2, 3, Q("4.21633 mm")))
pocket6 = body.newObject("PartDesign::Pocket", "Pocket005")
pocket6.Profile = sketch7
pocket6.Length = 3

# Sketch on YZ plane
sketch8 = body.newObject("Sketcher::SketchObject", "Sketch007")
sketch8.AttachmentSupport = (doc.getObject("YZ_Plane"), [""])
sketch8.MapMode = "FlatFace"
sketch8.AttachmentOffset = App.Placement(V(0, 0, -93.036315), App.Rotation())
add_polygon(sketch8, [(-2.1, 98.4), (-2.1, 93.7), (-4.4, 93.7), (-4.4, 98.4)])  # lines 0-3
add_polygon(sketch8, [(-2.1, 91.9), (-2.1, 87.6), (-4.4, 87.6), (-4.4, 91.9)])  # lines 4-7
add_polygon(sketch8, [(-2.1, 85.9), (-2.1, 81.4), (-4.4, 81.4), (-4.4, 85.9)])  # lines 8-11
sketch8.addConstraint(Sketcher.Constraint("Vertical", 0))
sketch8.addConstraint(Sketcher.Constraint("Horizontal", 1))
sketch8.addConstraint(Sketcher.Constraint("Vertical", 2))
sketch8.addConstraint(Sketcher.Constraint("Horizontal", 3))
sketch8.addConstraint(Sketcher.Constraint("Vertical", 4))
sketch8.addConstraint(Sketcher.Constraint("Horizontal", 5))
sketch8.addConstraint(Sketcher.Constraint("Vertical", 6))
sketch8.addConstraint(Sketcher.Constraint("Horizontal", 7))
sketch8.addConstraint(Sketcher.Constraint("Vertical", 8))
sketch8.addConstraint(Sketcher.Constraint("Horizontal", 9))
sketch8.addConstraint(Sketcher.Constraint("Vertical", 10))
sketch8.addConstraint(Sketcher.Constraint("Horizontal", 11))
sketch8.addConstraint(Sketcher.Constraint("Vertical", 3, 2, 4, 2))
sketch8.addConstraint(Sketcher.Constraint("Vertical", 2, 2, 5, 2))
sketch8.addConstraint(Sketcher.Constraint("Vertical", 7, 2, 8, 2))
sketch8.addConstraint(Sketcher.Constraint("Vertical", 6, 2, 9, 2))
sketch8.addConstraint(Sketcher.Constraint("DistanceY", 8, 2, 8, 1, Q("4.532799 mm")))
sketch8.addConstraint(Sketcher.Constraint("DistanceX", 1, 2, 1, 1, Q("2.26637 mm")))
sketch8.addConstraint(Sketcher.Constraint("DistanceY", 0, 2, 0, 1, Q("4.699148 mm")))
sketch8.addConstraint(Sketcher.Constraint("DistanceY", 4, 2, 4, 1, Q("4.320495 mm")))
sketch8.addConstraint(Sketcher.Constraint("DistanceY", -1, 1, 0, 2, Q("93.73153 mm")))
sketch8.addConstraint(Sketcher.Constraint("DistanceY", -1, 1, 8, 2, Q("81.36677 mm")))
sketch8.addConstraint(Sketcher.Constraint("DistanceY", 4, 2, 3, 2, Q("10.872141 mm")))
sketch8.addConstraint(Sketcher.Constraint("DistanceX", 0, 2, -1, 1, Q("2.101584 mm")))
pocket7 = body.newObject("PartDesign::Pocket", "Pocket006")
pocket7.Profile = sketch8
pocket7.Length = 3
pocket7.Reversed = True

doc.recompute()
